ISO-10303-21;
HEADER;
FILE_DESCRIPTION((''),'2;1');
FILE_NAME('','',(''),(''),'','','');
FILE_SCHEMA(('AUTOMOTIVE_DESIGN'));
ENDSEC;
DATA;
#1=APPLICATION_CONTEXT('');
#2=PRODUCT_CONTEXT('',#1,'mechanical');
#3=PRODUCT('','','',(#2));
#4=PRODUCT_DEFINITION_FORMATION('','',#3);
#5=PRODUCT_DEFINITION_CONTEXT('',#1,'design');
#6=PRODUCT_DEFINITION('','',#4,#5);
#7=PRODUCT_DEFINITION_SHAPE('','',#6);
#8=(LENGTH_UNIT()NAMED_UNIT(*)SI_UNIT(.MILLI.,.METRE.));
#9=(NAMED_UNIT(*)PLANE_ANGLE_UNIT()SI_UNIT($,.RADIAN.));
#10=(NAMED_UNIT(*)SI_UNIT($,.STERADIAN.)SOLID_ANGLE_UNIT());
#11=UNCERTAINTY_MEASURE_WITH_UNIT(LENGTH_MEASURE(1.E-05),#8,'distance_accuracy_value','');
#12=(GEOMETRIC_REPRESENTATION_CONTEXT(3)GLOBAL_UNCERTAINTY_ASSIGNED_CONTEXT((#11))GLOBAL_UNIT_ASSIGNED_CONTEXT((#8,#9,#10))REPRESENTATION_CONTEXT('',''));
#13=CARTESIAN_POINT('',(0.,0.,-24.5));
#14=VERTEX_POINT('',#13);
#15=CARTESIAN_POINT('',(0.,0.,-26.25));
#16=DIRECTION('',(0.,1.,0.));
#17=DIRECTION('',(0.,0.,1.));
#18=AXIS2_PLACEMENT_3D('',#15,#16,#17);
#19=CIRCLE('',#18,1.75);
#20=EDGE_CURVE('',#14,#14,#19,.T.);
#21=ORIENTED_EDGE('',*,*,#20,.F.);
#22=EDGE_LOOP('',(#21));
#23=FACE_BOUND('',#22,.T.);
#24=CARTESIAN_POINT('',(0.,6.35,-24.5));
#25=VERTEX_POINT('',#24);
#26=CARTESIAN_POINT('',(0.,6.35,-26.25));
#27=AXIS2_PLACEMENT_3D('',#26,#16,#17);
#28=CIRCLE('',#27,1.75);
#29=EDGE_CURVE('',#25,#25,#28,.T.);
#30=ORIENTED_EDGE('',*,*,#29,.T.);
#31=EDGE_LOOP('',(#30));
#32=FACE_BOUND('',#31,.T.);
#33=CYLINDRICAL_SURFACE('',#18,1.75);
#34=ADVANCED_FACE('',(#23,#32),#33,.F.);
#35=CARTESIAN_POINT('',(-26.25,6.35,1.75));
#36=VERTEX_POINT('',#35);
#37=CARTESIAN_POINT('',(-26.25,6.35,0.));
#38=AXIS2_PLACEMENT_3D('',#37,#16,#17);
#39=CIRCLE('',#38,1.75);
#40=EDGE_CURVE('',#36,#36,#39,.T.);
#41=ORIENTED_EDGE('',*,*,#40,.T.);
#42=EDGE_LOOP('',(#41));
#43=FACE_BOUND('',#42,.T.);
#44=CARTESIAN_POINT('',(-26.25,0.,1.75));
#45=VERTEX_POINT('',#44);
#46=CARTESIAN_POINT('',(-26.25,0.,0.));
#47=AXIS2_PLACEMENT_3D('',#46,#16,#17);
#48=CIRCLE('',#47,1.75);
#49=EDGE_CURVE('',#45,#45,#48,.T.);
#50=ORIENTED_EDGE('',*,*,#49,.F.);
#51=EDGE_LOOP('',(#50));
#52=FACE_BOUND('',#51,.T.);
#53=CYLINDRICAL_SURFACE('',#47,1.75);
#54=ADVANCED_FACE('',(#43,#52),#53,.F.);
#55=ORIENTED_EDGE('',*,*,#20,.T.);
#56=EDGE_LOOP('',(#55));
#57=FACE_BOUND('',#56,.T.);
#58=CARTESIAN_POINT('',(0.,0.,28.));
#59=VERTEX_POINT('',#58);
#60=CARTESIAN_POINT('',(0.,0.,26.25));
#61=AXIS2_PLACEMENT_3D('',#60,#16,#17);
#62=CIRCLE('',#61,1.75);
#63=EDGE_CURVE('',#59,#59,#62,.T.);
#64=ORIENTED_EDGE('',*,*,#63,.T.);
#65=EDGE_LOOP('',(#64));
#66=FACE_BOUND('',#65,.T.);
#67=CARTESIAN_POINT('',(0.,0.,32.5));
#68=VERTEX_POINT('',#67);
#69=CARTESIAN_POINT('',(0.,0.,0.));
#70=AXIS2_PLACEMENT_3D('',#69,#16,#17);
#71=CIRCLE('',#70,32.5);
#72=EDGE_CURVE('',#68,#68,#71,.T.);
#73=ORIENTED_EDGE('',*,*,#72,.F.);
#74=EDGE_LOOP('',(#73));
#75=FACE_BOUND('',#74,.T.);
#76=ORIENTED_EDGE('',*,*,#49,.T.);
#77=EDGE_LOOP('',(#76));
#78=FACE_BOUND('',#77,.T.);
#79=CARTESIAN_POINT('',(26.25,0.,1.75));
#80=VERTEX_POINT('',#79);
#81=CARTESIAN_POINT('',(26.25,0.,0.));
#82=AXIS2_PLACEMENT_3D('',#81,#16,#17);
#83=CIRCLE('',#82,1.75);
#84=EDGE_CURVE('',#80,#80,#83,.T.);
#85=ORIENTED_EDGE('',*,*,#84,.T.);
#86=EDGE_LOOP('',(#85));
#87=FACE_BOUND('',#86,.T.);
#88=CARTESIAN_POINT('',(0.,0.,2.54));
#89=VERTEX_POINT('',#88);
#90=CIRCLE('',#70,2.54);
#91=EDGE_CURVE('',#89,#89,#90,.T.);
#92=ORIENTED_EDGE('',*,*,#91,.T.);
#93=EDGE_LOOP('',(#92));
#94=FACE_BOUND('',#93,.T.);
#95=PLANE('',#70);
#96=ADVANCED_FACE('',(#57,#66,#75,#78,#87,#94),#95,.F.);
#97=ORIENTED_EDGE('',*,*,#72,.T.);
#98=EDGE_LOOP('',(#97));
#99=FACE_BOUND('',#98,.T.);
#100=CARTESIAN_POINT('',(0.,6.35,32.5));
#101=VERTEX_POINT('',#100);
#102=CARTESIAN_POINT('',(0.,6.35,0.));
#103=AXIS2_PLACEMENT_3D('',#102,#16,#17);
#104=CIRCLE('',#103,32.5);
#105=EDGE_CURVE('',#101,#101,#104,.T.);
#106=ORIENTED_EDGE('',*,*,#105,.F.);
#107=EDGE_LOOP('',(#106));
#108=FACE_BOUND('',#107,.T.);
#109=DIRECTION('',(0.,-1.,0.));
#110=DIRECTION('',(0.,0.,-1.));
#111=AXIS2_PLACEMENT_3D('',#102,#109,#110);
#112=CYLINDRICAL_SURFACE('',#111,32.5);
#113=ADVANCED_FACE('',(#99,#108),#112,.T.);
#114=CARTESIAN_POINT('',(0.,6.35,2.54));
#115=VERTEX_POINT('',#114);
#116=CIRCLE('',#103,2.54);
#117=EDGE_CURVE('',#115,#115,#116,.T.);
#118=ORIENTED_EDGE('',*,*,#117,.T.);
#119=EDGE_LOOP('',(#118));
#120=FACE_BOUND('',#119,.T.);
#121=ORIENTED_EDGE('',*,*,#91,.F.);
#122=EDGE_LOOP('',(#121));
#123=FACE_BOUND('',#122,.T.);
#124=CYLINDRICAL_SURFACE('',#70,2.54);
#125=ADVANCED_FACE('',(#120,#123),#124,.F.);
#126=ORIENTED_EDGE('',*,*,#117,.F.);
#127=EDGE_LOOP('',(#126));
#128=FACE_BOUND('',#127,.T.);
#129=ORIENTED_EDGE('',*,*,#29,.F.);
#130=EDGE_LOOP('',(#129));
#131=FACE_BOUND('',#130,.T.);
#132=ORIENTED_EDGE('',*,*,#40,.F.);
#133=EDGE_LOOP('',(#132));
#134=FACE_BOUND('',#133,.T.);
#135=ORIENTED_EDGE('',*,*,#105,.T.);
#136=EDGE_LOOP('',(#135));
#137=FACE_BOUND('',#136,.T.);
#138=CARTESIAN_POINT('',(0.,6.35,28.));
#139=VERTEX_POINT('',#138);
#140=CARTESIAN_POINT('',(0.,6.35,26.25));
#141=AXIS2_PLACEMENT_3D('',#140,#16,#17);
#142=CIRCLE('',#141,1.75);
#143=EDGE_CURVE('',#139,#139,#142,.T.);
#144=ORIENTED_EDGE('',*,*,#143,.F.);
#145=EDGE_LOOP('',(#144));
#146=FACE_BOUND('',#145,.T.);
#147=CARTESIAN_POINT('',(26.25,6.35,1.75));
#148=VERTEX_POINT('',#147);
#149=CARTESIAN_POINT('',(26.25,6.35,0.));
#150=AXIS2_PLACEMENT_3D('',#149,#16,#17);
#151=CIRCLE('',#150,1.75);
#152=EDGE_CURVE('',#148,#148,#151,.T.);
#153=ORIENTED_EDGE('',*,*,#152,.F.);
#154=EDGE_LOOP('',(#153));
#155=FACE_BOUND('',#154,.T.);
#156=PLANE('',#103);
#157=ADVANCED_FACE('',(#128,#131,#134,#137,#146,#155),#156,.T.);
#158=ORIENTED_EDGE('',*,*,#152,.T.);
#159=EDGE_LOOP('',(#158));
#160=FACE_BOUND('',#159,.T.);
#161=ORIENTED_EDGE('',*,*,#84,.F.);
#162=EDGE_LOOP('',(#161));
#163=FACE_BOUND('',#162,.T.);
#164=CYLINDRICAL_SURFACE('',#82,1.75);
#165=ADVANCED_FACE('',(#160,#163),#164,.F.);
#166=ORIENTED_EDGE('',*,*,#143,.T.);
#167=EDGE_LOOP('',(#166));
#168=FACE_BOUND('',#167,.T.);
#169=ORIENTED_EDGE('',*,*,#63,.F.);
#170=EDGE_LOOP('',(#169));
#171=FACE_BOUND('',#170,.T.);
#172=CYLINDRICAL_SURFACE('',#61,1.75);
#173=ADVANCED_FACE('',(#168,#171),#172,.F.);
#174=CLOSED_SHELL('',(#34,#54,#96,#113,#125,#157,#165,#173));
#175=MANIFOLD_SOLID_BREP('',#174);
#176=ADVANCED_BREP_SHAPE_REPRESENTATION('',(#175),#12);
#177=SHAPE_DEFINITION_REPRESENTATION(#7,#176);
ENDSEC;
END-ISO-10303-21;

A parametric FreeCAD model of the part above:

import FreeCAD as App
import Part
import Sketcher

V = App.Vector

doc = App.newDocument("Part")
body = doc.addObject("PartDesign::Body", "Body")

sketch1 = doc.addObject("Sketcher::SketchObject", "Sketch")
body.addObject(sketch1)
sketch1.AttachmentSupport = (doc.XZ_Plane, [""])
sketch1.MapMode = "FlatFace"
sketch1.addGeometry(Part.Circle(V(0, 0, 0), V(0, 0, 1), 32), False)
sketch1.addConstraint([
    Sketcher.Constraint("Coincident", 0, 3, -1, 1),
    Sketcher.Constraint("Diameter", 0, 65.0),
])
pad1 = doc.addObject("PartDesign::Pad", "Pad")
body.addObject(pad1)
pad1.Profile = sketch1
pad1.Length = 6.35
pad1.Reversed = True

sketch2 = doc.addObject("Sketcher::SketchObject", "Sketch001")
body.addObject(sketch2)
sketch2.AttachmentSupport = (doc.XZ_Plane, [""])
sketch2.MapMode = "FlatFace"
sketch2.AttachmentOffset = App.Placement(V(0, 0, -6.35), App.Rotation())
sketch2.addGeometry(Part.Circle(V(0, 0, 0), V(0, 0, 1), 2.5), False)
sketch2.addConstraint([
    Sketcher.Constraint("Coincident", 0, 3, -1, 1),
    Sketcher.Constraint("Diameter", 0, 5.08),
])
pocket1 = doc.addObject("PartDesign::Pocket", "Pocket")
body.addObject(pocket1)
pocket1.Profile = sketch2
pocket1.Type = "ThroughAll"
pocket1.Reversed = True

sketch3 = doc.addObject("Sketcher::SketchObject", "Sketch002")
body.addObject(sketch3)
sketch3.AttachmentSupport = (doc.XZ_Plane, [""])
sketch3.MapMode = "FlatFace"
sketch3.AttachmentOffset = App.Placement(V(0, 0, -6.35), App.Rotation())
sketch3.addGeometry([
    Part.Circle(V(0, 26.2, 0), V(0, 0, 1), 1.8),
    Part.Circle(V(26.2, 0, 0), V(0, 0, 1), 1.8),
    Part.Circle(V(0, -26.2, 0), V(0, 0, 1), 1.8),
    Part.Circle(V(-26.2, 0, 0), V(0, 0, 1), 1.8),
], False)
sketch3.addConstraint([
    Sketcher.Constraint("Equal", 0, 1),
    Sketcher.Constraint("Equal", 1, 2),
    Sketcher.Constraint("Equal", 2, 3),
    Sketcher.Constraint("Symmetric", 0, 3, 2, 3, -1, 1),
    Sketcher.Constraint("Symmetric", 1, 3, 3, 3, -1, 1),
    Sketcher.Constraint("PointOnObject", 0, 3, -2),
    Sketcher.Constraint("PointOnObject", 1, 3, -1),
    Sketcher.Constraint("Diameter", 0, 3.5),
    Sketcher.Constraint("DistanceY", 2, 3, 0, 3, 52.5),
    Sketcher.Constraint("DistanceX", 3, 3, 1, 3, 52.5),
])
pocket2 = doc.addObject("PartDesign::Pocket", "Pocket001")
body.addObject(pocket2)
pocket2.Profile = sketch3
pocket2.Type = "ThroughAll"
pocket2.Reversed = True

doc.recompute()
